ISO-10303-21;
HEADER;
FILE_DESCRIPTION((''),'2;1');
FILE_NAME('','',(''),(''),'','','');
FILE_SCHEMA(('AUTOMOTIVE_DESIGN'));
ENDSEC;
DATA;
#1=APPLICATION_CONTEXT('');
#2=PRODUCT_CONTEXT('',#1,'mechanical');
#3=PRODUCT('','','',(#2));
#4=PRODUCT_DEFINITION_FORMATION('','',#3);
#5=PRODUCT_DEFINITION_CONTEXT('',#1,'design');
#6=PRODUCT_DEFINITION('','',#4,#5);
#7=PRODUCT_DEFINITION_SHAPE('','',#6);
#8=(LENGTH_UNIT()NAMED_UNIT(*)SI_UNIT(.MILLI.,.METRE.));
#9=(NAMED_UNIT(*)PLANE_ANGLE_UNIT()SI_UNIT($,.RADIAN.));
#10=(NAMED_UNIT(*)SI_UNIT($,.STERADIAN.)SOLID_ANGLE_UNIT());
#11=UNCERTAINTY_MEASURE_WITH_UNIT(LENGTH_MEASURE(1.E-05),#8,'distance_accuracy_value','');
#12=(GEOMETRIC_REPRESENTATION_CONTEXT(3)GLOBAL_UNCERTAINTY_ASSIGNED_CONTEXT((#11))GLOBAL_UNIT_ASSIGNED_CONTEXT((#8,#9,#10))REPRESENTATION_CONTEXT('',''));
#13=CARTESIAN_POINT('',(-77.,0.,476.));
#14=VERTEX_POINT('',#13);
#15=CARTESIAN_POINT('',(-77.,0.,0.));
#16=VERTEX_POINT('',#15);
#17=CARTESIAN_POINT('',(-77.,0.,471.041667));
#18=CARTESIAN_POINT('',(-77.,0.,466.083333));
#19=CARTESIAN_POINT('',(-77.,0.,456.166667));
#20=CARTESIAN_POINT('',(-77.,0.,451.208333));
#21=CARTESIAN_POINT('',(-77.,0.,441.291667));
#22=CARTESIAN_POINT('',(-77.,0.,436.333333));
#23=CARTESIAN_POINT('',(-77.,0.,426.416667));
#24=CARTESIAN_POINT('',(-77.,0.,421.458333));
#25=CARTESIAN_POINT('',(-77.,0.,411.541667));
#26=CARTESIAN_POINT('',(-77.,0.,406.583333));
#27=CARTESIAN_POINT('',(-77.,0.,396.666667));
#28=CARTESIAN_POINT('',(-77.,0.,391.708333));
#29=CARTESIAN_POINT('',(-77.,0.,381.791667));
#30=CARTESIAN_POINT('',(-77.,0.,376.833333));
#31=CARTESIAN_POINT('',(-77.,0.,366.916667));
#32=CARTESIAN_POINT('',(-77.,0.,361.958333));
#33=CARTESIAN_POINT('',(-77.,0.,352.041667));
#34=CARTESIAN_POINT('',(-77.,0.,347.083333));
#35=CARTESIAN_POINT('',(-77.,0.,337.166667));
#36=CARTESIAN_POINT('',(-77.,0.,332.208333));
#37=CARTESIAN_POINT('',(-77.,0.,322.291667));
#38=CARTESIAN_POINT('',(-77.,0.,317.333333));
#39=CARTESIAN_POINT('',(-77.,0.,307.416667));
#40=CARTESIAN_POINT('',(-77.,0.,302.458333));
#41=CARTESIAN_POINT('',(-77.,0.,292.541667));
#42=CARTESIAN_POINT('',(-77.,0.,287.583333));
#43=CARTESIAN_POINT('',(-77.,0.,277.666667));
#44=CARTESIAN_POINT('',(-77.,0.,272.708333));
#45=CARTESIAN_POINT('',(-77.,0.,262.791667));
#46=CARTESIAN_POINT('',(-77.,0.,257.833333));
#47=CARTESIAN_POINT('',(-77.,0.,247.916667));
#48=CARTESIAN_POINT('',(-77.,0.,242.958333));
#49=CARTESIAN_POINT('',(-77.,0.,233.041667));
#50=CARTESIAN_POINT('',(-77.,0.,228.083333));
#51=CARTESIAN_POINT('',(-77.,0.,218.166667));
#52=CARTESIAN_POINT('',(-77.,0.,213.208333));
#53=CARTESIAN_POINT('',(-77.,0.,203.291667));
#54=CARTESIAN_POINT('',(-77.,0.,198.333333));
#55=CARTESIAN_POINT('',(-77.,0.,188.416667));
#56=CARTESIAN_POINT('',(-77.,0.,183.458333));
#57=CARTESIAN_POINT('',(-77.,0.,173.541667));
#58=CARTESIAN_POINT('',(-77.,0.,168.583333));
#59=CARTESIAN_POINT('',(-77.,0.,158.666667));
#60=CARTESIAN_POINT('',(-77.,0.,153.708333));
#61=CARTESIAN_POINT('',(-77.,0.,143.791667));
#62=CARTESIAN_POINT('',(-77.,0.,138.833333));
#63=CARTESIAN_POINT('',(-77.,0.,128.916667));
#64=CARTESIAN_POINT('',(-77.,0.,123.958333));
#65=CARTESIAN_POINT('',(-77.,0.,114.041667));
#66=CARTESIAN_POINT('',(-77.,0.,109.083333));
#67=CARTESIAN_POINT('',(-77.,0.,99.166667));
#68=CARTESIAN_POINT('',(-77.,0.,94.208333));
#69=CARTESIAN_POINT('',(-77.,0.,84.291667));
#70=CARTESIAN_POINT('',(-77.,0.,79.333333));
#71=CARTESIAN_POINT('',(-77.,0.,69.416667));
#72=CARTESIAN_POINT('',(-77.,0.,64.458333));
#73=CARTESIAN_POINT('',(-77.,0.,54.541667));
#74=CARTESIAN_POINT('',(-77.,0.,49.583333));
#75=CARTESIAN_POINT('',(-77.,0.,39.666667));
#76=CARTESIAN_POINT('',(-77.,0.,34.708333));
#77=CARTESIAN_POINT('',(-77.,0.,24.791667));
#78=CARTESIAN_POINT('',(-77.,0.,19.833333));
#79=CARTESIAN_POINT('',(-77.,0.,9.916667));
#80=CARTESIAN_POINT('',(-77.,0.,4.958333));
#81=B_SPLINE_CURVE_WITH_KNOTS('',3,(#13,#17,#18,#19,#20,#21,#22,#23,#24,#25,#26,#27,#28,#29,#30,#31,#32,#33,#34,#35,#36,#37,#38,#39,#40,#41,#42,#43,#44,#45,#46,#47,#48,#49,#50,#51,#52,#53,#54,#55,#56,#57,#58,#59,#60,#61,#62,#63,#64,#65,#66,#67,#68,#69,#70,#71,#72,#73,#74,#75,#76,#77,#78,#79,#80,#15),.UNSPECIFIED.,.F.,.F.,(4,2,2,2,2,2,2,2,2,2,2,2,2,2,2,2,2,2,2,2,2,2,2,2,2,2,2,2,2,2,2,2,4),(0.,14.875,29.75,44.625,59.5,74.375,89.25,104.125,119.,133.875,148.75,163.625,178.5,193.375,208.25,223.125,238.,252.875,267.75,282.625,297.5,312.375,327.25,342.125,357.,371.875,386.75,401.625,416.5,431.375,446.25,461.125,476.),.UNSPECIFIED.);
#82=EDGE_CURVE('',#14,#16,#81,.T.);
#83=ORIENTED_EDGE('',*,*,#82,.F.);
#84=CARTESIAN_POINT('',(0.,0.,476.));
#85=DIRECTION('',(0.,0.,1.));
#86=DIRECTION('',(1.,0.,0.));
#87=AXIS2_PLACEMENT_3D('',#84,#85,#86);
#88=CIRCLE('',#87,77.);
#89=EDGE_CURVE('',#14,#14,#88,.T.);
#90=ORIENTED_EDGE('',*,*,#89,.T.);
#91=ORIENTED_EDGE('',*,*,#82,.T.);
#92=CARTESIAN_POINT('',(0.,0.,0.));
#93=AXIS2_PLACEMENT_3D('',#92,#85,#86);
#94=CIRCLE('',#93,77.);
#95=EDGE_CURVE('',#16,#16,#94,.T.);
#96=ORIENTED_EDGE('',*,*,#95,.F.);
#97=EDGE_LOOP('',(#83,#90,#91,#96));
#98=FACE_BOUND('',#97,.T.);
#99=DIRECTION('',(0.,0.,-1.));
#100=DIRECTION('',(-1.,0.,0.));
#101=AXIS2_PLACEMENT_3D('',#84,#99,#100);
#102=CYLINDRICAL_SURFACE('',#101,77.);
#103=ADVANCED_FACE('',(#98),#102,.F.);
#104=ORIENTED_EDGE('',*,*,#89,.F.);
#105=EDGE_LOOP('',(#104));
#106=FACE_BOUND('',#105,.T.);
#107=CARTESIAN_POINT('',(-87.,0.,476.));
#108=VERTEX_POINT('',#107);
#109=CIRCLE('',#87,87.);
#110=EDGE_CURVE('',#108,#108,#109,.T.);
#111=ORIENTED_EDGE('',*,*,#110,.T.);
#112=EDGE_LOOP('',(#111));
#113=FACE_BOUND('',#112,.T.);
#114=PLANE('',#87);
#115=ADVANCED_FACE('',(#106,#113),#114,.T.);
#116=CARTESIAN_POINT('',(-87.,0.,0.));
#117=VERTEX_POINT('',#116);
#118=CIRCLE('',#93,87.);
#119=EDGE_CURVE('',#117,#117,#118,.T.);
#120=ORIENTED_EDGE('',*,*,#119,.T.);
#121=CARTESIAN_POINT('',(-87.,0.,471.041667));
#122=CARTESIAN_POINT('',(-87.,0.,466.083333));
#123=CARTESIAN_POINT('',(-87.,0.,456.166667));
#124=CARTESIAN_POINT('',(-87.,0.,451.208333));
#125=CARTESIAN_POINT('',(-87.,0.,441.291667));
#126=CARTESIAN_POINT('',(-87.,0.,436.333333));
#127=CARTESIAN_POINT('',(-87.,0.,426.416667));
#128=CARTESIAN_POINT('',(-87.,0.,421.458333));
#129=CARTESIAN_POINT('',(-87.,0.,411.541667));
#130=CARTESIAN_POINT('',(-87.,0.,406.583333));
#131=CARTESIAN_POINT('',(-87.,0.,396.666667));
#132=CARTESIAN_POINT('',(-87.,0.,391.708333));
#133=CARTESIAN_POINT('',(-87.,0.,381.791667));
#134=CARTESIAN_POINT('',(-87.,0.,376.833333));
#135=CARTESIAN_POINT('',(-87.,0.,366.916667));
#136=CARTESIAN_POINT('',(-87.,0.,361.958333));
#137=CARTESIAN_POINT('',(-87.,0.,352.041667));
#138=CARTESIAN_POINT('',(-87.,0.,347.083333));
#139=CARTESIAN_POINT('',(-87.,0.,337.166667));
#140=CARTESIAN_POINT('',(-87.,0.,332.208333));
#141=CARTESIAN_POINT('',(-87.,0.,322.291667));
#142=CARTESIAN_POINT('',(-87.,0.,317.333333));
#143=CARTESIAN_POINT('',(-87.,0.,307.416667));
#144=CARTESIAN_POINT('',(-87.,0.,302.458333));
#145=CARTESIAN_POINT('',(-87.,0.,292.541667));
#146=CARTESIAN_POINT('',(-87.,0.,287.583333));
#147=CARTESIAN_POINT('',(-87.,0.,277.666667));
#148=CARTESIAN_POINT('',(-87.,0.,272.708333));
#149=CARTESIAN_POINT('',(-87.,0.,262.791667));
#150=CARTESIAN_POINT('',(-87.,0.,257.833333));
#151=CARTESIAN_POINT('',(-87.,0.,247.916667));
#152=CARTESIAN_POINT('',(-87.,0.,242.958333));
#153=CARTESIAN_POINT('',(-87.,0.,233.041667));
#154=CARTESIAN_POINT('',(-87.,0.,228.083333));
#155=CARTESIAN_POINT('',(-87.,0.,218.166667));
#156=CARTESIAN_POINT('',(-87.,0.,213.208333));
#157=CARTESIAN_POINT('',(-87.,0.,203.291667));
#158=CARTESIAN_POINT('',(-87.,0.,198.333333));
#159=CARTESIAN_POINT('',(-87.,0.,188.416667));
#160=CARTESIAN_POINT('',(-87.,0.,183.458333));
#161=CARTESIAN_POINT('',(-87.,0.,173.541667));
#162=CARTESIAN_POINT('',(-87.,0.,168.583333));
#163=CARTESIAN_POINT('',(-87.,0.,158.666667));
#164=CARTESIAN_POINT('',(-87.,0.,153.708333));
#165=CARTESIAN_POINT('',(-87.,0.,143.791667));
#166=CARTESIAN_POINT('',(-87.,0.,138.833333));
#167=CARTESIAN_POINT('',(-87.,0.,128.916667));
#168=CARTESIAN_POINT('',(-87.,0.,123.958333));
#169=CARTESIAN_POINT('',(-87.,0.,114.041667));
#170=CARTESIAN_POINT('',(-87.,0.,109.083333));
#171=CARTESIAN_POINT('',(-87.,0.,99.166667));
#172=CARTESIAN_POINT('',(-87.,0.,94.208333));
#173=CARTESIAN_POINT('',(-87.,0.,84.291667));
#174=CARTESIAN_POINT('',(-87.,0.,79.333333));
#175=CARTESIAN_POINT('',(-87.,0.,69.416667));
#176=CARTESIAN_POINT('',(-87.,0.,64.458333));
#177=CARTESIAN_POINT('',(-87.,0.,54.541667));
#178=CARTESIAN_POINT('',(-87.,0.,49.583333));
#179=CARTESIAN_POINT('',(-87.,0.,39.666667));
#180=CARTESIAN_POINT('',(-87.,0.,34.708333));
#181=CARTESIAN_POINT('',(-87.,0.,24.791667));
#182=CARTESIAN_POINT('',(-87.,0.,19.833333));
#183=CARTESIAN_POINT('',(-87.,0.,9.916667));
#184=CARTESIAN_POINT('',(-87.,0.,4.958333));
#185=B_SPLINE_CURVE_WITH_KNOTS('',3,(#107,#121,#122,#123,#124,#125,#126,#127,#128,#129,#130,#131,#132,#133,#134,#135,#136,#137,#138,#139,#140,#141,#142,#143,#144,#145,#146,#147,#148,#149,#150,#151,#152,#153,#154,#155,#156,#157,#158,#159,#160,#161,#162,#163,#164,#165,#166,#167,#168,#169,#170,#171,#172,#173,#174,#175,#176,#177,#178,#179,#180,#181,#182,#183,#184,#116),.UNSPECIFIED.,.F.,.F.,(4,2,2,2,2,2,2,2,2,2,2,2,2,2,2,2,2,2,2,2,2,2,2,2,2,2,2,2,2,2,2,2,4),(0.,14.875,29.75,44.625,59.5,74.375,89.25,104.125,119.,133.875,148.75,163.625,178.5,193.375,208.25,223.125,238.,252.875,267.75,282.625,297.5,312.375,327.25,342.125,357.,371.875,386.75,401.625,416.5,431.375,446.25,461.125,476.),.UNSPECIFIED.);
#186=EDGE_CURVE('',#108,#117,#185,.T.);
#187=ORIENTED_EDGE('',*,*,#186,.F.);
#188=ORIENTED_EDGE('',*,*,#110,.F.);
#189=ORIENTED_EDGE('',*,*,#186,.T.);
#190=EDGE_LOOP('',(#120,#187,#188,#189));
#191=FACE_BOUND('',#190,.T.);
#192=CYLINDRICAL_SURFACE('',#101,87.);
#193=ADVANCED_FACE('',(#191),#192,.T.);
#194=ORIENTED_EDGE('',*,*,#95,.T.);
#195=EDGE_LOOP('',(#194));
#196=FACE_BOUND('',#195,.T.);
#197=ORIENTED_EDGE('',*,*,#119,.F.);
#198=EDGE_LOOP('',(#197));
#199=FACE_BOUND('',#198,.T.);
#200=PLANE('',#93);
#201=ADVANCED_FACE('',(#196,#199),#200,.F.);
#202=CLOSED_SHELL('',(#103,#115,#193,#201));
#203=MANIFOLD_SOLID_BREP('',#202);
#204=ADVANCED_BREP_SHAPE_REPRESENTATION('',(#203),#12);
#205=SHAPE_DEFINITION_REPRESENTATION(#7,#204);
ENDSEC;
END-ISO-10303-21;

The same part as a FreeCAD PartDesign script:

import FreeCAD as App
import Part
import Sketcher
Q = App.Units.Quantity

doc = App.newDocument("Part")
body = doc.addObject("PartDesign::Body", "Body")

# Sketch on XY plane
sketch1 = body.newObject("Sketcher::SketchObject", "Sketch")
sketch1.AttachmentSupport = (doc.getObject("XY_Plane"), [""])
sketch1.MapMode = "FlatFace"
sketch1.addGeometry(Part.Circle(App.Vector(0, 0, 0), App.Vector(0, 0, 1), 87), False)
sketch1.addGeometry(Part.Circle(App.Vector(0, 0, 0), App.Vector(0, 0, 1), 77), False)
sketch1.addConstraint(Sketcher.Constraint("Coincident", 0, 3, -1, 1))
sketch1.addConstraint(Sketcher.Constraint("Coincident", 1, 3, -1, 1))
sketch1.addConstraint(Sketcher.Constraint("Diameter", 0, Q("174 mm")))
sketch1.addConstraint(Sketcher.Constraint("Diameter", 1, Q("154 mm")))
pad1 = body.newObject("PartDesign::Pad", "Pad")
pad1.Profile = sketch1
pad1.Length = 476

doc.recompute()
